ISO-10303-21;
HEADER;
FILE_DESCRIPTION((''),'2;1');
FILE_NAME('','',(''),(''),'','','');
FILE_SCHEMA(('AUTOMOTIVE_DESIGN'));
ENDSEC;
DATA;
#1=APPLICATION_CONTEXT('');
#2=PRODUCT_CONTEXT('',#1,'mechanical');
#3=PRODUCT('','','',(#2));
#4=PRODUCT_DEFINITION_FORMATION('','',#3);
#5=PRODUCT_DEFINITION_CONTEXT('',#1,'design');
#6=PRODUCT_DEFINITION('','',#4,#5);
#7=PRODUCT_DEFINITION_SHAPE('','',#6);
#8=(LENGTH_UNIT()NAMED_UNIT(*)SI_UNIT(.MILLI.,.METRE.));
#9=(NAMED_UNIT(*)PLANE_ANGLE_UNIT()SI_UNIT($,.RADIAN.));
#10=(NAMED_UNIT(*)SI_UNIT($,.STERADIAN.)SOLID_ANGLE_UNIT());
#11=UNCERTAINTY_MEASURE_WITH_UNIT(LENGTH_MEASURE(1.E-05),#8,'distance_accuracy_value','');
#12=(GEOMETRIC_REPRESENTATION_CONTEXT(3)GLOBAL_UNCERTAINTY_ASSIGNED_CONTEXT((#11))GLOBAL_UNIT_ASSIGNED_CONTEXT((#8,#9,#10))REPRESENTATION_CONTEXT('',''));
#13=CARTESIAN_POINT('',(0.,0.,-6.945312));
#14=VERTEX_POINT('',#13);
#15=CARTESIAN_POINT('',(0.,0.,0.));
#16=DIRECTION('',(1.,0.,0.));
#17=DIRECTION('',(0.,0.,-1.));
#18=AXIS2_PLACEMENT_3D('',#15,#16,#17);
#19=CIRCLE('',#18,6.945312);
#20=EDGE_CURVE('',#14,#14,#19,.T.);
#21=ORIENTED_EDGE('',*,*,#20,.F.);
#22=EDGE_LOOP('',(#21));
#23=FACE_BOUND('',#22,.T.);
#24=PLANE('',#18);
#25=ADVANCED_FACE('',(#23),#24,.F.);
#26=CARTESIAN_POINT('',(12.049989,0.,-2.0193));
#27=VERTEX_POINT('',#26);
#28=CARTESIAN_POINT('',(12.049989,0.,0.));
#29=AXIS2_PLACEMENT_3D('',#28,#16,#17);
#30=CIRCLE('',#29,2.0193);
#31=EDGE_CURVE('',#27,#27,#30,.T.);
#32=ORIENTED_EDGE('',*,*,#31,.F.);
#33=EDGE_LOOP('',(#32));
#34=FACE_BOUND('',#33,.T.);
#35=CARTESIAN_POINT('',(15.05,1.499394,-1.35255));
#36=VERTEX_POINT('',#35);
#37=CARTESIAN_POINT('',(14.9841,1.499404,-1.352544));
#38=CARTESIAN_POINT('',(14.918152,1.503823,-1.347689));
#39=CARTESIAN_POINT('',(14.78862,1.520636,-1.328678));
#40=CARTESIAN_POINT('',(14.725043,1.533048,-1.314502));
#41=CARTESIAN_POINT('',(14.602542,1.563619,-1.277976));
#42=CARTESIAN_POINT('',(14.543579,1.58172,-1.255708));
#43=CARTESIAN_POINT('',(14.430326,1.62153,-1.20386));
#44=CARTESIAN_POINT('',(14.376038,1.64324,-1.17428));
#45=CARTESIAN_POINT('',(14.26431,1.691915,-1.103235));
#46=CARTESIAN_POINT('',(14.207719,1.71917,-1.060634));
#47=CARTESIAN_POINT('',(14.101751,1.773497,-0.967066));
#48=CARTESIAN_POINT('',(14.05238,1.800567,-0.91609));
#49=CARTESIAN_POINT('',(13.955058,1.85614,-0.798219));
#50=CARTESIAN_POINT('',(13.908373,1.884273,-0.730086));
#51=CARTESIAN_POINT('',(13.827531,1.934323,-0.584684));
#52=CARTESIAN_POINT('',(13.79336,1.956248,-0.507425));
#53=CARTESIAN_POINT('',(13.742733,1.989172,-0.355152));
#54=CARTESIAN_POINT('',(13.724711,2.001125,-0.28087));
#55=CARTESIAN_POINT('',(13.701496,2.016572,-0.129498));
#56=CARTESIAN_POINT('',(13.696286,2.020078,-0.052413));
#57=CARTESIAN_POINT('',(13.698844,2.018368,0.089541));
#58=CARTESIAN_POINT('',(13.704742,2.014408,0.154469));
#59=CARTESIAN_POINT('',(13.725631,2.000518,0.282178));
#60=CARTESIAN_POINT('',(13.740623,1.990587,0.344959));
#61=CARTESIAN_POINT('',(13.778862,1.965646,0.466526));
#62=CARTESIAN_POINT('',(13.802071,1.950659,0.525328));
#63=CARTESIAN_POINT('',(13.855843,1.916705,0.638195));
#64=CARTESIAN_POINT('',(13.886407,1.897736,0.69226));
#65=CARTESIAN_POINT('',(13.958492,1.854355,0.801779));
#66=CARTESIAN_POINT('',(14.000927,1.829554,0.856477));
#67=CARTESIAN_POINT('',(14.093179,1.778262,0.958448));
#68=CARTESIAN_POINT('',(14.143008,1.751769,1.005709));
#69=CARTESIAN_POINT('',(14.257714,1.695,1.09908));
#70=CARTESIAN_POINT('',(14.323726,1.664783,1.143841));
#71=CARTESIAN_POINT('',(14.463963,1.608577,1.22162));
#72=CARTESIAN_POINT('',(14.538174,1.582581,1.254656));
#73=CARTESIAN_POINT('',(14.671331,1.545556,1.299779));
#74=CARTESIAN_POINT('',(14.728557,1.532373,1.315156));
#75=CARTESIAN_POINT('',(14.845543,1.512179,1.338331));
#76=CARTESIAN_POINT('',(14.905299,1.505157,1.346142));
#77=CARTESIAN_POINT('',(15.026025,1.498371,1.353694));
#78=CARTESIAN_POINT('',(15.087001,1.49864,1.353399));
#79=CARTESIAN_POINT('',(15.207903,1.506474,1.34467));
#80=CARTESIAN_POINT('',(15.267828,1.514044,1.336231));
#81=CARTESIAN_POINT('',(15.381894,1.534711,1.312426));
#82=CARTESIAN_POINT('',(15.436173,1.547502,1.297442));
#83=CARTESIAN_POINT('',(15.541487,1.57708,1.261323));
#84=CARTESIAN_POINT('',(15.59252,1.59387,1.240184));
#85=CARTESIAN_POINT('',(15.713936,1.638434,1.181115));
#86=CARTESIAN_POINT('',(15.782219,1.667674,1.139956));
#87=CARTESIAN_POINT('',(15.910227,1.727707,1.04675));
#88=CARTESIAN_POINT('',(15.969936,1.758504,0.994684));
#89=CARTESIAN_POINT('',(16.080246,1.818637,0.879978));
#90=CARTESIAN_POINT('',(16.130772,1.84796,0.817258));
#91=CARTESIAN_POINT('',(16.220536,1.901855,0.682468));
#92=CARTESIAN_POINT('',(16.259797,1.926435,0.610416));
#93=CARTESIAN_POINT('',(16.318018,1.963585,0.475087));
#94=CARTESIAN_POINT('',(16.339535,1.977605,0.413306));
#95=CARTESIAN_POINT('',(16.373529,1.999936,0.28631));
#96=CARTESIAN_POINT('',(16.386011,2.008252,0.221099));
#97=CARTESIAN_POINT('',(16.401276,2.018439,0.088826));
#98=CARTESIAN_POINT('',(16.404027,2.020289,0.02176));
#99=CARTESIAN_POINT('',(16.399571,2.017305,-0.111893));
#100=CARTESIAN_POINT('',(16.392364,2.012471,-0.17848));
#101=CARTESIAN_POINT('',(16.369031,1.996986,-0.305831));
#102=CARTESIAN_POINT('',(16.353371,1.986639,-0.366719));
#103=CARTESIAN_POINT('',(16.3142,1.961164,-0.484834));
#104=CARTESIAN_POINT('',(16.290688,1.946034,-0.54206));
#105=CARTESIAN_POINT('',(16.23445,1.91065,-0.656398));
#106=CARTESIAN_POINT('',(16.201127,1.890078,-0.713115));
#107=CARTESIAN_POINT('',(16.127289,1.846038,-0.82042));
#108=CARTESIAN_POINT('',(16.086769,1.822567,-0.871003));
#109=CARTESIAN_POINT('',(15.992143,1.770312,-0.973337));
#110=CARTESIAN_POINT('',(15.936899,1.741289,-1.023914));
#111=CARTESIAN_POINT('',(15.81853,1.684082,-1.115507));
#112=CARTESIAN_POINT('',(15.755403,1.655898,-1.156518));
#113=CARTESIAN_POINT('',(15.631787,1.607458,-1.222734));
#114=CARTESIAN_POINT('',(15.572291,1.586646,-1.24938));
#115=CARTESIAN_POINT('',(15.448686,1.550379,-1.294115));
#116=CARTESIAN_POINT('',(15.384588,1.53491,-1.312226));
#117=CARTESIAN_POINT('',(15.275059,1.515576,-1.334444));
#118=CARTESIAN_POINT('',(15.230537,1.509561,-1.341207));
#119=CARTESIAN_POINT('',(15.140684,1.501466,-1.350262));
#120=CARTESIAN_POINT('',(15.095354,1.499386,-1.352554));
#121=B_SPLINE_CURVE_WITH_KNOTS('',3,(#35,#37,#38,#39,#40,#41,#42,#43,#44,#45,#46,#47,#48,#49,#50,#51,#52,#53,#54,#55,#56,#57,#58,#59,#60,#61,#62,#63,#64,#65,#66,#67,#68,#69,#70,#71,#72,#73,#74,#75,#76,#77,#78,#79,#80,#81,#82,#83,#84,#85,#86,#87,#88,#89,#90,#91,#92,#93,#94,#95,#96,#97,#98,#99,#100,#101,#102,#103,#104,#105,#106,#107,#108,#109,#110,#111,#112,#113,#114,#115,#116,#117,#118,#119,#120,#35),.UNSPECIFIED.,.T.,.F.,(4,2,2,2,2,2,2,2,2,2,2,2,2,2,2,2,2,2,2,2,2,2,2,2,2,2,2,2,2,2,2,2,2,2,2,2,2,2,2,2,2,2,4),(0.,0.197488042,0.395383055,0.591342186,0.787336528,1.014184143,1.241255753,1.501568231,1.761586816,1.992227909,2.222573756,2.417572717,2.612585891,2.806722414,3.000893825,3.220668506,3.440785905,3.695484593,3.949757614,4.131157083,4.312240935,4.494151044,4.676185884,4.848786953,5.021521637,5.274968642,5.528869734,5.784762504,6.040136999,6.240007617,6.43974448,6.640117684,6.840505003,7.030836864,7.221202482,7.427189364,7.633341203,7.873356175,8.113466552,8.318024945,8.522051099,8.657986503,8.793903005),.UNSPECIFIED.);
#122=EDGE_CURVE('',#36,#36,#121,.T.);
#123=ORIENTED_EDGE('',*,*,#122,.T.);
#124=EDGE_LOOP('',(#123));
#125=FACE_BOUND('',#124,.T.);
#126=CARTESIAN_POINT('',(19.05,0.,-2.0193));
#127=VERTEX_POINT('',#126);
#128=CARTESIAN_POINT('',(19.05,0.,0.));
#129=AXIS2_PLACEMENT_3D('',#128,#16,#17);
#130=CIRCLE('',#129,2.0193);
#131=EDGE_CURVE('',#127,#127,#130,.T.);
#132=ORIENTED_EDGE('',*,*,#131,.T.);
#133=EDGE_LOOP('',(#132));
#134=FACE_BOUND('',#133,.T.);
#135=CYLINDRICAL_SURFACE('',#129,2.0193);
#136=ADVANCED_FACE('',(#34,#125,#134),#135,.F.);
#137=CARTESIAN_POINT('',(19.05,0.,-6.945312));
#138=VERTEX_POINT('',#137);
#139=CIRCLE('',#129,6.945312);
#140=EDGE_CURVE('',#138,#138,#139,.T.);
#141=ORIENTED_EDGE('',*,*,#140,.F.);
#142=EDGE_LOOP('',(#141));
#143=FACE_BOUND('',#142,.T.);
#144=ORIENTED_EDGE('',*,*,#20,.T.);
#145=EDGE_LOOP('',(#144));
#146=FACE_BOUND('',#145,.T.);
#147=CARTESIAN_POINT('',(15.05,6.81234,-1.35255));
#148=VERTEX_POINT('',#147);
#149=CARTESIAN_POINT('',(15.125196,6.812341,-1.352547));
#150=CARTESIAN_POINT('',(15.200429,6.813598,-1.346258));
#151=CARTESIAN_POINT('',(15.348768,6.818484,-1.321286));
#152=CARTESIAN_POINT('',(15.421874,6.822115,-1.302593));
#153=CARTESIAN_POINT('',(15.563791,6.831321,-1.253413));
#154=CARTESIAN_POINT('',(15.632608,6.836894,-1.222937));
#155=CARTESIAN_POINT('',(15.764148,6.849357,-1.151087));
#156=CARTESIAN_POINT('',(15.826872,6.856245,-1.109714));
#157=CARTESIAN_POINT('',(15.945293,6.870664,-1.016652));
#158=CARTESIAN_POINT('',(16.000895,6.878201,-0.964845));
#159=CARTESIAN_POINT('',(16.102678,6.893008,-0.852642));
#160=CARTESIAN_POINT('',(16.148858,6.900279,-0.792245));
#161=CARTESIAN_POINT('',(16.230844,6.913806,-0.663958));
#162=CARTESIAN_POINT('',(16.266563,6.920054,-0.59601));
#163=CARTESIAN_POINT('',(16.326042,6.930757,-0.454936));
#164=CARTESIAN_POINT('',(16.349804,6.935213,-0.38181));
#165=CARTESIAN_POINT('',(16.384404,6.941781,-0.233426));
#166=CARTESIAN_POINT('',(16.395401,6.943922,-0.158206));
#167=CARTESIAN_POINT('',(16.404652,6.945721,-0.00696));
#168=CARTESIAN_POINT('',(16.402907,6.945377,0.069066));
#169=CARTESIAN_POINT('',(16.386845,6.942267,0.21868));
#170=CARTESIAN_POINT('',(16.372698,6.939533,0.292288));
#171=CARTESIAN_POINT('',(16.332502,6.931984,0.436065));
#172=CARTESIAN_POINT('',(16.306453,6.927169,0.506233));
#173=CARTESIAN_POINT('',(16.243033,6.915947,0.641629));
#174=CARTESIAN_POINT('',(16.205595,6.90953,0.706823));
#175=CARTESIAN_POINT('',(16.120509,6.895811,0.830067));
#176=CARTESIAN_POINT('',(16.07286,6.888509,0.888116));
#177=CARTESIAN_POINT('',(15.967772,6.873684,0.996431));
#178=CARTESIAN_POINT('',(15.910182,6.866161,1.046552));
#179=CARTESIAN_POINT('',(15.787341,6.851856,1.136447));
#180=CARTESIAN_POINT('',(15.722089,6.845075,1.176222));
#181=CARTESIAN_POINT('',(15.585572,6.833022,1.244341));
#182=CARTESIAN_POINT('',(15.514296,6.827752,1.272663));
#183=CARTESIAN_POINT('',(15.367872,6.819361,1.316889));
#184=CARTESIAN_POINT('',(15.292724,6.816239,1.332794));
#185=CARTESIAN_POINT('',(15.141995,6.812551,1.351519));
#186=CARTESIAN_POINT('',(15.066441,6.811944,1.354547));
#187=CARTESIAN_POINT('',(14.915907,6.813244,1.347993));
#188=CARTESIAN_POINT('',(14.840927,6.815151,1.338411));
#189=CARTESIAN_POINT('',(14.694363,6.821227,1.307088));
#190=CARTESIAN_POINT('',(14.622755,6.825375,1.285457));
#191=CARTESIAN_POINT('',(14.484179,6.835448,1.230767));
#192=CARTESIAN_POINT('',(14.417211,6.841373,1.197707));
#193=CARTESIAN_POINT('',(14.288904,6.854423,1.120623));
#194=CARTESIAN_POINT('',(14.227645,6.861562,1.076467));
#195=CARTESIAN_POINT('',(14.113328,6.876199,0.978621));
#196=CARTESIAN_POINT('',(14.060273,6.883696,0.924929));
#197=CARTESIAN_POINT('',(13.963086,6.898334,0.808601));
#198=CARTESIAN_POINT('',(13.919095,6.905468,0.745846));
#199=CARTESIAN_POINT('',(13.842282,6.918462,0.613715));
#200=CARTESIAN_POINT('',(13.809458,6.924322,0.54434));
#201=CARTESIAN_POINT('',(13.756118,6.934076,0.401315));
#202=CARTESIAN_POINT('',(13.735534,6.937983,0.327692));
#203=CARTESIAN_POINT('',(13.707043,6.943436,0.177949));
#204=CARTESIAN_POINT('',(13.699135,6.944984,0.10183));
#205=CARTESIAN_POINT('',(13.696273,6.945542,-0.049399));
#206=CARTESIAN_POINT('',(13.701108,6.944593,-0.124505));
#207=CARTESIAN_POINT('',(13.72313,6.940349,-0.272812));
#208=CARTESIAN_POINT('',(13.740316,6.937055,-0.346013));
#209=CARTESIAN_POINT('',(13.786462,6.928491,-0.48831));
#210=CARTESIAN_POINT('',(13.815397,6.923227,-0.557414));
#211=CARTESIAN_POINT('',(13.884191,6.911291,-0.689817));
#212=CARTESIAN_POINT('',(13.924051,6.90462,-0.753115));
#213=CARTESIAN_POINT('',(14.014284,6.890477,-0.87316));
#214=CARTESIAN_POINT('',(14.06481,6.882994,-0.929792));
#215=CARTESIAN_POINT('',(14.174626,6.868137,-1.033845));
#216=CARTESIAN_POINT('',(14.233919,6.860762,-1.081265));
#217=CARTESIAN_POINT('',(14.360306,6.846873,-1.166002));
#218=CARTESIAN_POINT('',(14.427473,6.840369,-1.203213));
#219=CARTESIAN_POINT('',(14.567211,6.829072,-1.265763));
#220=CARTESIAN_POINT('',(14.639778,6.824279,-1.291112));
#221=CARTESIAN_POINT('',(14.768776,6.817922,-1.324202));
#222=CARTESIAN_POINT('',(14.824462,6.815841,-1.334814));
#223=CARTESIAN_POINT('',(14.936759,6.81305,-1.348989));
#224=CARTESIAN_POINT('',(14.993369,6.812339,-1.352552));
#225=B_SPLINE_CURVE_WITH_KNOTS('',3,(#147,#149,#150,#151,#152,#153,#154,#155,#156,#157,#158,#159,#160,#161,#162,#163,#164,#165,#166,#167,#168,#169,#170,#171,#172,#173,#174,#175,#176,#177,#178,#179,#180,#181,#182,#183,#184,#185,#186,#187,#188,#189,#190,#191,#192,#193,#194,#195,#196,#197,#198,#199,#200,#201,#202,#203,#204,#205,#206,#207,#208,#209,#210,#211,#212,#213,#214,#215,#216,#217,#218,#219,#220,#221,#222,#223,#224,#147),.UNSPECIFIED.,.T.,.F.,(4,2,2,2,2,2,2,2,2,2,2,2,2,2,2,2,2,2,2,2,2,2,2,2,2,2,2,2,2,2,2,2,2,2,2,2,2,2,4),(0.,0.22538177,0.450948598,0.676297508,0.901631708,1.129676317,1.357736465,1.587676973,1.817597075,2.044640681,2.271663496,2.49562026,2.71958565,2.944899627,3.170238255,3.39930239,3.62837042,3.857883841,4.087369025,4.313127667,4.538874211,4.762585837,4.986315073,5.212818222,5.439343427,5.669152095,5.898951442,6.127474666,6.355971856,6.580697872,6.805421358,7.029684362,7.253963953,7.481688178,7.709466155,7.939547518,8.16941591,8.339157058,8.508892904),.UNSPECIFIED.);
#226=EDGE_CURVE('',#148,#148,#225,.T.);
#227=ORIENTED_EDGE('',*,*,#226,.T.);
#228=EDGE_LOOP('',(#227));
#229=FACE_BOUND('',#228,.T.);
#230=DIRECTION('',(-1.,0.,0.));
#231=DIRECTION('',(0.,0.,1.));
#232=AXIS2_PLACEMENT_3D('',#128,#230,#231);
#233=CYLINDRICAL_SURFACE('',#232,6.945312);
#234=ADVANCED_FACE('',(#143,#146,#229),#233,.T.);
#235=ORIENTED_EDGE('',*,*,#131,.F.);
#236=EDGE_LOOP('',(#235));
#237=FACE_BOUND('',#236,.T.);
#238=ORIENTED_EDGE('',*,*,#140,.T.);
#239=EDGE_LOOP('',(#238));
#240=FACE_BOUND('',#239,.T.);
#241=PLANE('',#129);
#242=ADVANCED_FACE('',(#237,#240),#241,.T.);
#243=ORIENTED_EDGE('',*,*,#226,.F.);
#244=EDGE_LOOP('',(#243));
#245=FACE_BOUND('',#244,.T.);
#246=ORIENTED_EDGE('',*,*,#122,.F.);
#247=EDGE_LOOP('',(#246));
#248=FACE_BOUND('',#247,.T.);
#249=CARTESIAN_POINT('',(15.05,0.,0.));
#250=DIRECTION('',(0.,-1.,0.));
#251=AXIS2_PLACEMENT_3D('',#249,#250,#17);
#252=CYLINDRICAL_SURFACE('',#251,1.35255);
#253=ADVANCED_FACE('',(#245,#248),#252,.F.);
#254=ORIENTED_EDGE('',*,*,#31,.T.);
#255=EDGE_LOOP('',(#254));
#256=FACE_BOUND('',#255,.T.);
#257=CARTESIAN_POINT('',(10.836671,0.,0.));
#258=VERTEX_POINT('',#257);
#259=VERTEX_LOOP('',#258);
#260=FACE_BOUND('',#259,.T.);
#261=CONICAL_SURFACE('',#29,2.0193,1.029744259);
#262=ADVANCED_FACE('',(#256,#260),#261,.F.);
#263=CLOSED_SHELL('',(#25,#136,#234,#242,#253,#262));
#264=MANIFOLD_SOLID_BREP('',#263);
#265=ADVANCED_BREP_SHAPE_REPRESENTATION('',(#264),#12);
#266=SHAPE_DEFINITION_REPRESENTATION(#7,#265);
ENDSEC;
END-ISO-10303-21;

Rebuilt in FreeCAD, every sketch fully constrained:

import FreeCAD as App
import Part
import Sketcher
Q = App.Units.Quantity

doc = App.newDocument("Part")
body = doc.addObject("PartDesign::Body", "Body")

# Sketch on YZ plane
sketch1 = doc.addObject("Sketcher::SketchObject", "Sketch")
body.addObject(sketch1)
sketch1.AttachmentSupport = (doc.YZ_Plane, [""])
sketch1.MapMode = "FlatFace"
sketch1.addGeometry(Part.Circle(App.Vector(0, 0, 0), App.Vector(0, 0, 1), 7), False)
sketch1.addConstraint(Sketcher.Constraint("Coincident", 0, 3, -1, 1))
sketch1.addConstraint(Sketcher.Constraint("Diameter", 0, Q("0.546875 in")))
pad1 = doc.addObject("PartDesign::Pad", "Pad")
body.addObject(pad1)
pad1.Profile = sketch1
pad1.Length = Q("0.75 in")

# Sketch on YZ plane
sketch2 = doc.addObject("Sketcher::SketchObject", "Sketch001")
body.addObject(sketch2)
sketch2.AttachmentSupport = (doc.YZ_Plane, [""])
sketch2.MapMode = "FlatFace"
sketch2.AttachmentOffset = App.Placement(App.Vector(0, 0, 0.75 * 25.4), App.Rotation())
sketch2.addGeometry(Part.Circle(App.Vector(0, 0, 0), App.Vector(0, 0, 1), 2), False)
sketch2.addConstraint(Sketcher.Constraint("Coincident", 0, 3, -1, 1))
sketch2.addConstraint(Sketcher.Constraint("Diameter", 0, Q("0.159 in")))
doc.recompute()
hole = doc.addObject("PartDesign::Hole", "Hole")
body.addObject(hole)
hole.Profile = sketch2
hole.ThreadType = "None"
hole.Diameter = Q("0.159 in")
hole.DepthType = "Dimension"
hole.Depth = 7.000011
hole.DrillPoint = "Angled"
hole.DrillPointAngle = 118

# Sketch on YZ plane
sketch3 = doc.addObject("Sketcher::SketchObject", "Sketch002")
body.addObject(sketch3)
sketch3.AttachmentSupport = (doc.YZ_Plane, [""])
sketch3.MapMode = "FlatFace"
sketch3.AttachmentOffset = App.Placement(App.Vector(0, 0, 15.05), App.Rotation())
sketch3.addGeometry(Part.LineSegment(App.Vector(6.9, 0, 0), App.Vector(0, 0, 0)), False)
sketch3.addGeometry(Part.LineSegment(App.Vector(0, 0, 0), App.Vector(0, -1.4, 0)), False)
sketch3.addGeometry(Part.LineSegment(App.Vector(0, -1.4, 0), App.Vector(6.9, -1.4, 0)), False)
sketch3.addGeometry(Part.LineSegment(App.Vector(6.9, -1.4, 0), App.Vector(6.9, 0, 0)), False)
sketch3.addConstraint(Sketcher.Constraint("Coincident", 0, 2, 1, 1))
sketch3.addConstraint(Sketcher.Constraint("Coincident", 1, 2, 2, 1))
sketch3.addConstraint(Sketcher.Constraint("Coincident", 2, 2, 3, 1))
sketch3.addConstraint(Sketcher.Constraint("Coincident", 3, 2, 0, 1))
sketch3.addConstraint(Sketcher.Constraint("Horizontal", 0))
sketch3.addConstraint(Sketcher.Constraint("Vertical", 1))
sketch3.addConstraint(Sketcher.Constraint("Horizontal", 2))
sketch3.addConstraint(Sketcher.Constraint("Vertical", 3))
sketch3.addConstraint(Sketcher.Constraint("Coincident", 0, 2, -1, 1))
sketch3.addConstraint(Sketcher.Constraint("DistanceY", 1, 2, 1, 1, Q("1.35255 mm")))
sketch3.addConstraint(Sketcher.Constraint("DistanceX", 0, 2, 0, 1, Q("6.945312 mm")))
groove = doc.addObject("PartDesign::Groove", "Groove")
body.addObject(groove)
groove.Profile = sketch3
groove.ReferenceAxis = (sketch3, ["H_Axis"])
groove.Angle = 360

doc.recompute()
